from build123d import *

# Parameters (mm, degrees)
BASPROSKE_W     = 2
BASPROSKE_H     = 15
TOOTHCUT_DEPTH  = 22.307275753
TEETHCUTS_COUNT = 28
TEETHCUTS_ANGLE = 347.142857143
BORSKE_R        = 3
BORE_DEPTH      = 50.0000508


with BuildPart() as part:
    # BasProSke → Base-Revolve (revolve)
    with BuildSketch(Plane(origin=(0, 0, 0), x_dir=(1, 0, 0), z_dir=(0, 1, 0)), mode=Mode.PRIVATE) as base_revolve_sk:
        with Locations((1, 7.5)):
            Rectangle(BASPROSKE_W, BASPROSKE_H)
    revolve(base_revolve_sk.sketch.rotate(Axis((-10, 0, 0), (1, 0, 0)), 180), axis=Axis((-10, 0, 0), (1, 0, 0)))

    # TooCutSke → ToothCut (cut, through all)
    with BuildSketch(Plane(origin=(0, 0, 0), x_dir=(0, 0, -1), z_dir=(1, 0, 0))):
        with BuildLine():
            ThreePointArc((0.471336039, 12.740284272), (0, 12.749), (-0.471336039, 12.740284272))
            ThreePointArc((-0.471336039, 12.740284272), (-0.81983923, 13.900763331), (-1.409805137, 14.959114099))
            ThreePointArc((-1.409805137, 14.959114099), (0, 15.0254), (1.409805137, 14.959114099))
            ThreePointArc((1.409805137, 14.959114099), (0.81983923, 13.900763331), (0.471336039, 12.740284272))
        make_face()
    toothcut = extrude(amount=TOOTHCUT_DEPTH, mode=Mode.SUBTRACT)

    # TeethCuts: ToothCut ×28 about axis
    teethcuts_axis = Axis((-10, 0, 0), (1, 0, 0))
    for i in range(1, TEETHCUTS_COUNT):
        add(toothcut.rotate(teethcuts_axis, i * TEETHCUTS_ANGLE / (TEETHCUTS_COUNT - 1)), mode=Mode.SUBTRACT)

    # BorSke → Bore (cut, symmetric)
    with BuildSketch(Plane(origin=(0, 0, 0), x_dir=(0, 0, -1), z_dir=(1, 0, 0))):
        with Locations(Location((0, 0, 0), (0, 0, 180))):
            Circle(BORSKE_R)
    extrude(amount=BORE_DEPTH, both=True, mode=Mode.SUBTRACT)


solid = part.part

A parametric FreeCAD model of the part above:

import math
import FreeCAD as App
import Part
import Sketcher
Q = App.Units.Quantity


def add_polygon(sketch, points):
    """Adds a closed chain of lines whose ends are joined by coincident constraints."""
    first, n = sketch.GeometryCount, len(points)
    for a, b in zip(points, points[1:] + points[:1]):
        sketch.addGeometry(Part.LineSegment(App.Vector(*a, 0), App.Vector(*b, 0)), False)
    for i in range(n):
        sketch.addConstraint(Sketcher.Constraint("Coincident", first + i, 2, first + (i + 1) % n, 1))

doc = App.newDocument("Part")
body = doc.addObject("PartDesign::Body", "Body")

# Sketch on XZ plane
sketch1 = doc.addObject("Sketcher::SketchObject", "Sketch")
body.addObject(sketch1)
sketch1.AttachmentSupport = (doc.XZ_Plane, [""])
sketch1.MapMode = "FlatFace"
add_polygon(sketch1, [(0, -15), (0, 0), (2, 0), (2, -15)])  # lines 0-3
sketch1.addConstraint(Sketcher.Constraint("Vertical", 0))
sketch1.addConstraint(Sketcher.Constraint("Horizontal", 1))
sketch1.addConstraint(Sketcher.Constraint("Vertical", 2))
sketch1.addConstraint(Sketcher.Constraint("Horizontal", 3))
sketch1.addConstraint(Sketcher.Constraint("Coincident", 0, 2, -1, 1))
sketch1.addConstraint(Sketcher.Constraint("DistanceX", 1, 1, 1, 2, Q("2 mm")))
sketch1.addConstraint(Sketcher.Constraint("DistanceY", 0, 1, 0, 2, Q("15 mm")))
revolution = doc.addObject("PartDesign::Revolution", "Revolution")
body.addObject(revolution)
revolution.Profile = sketch1
revolution.ReferenceAxis = (sketch1, ["H_Axis"])
revolution.Angle = 360

# Sketch on YZ plane
sketch2 = doc.addObject("Sketcher::SketchObject", "Sketch001")
body.addObject(sketch2)
sketch2.AttachmentSupport = (doc.YZ_Plane, [""])
sketch2.MapMode = "FlatFace"
sketch2.addGeometry(Part.ArcOfCircle(Part.Circle(App.Vector(0, 0, 0), App.Vector(0, 0, 1), 12.749), math.radians(-2.118733), math.radians(2.118733)), False)
sketch2.addGeometry(Part.ArcOfCircle(Part.Circle(App.Vector(11.719305, -5.977478, 0), App.Vector(0, 0, 1), 5.6), math.radians(54.652268), math.radians(79.49521)), False)
sketch2.addGeometry(Part.ArcOfCircle(Part.Circle(App.Vector(0, 0, 0), App.Vector(0, 0, 1), 15.0254), math.radians(-5.383875), math.radians(5.383875)), False)
sketch2.addGeometry(Part.ArcOfCircle(Part.Circle(App.Vector(11.719305, 5.977478, 0), App.Vector(0, 0, 1), 5.6), math.radians(-79.49521), math.radians(-54.652268)), False)
sketch2.addConstraint(Sketcher.Constraint("Coincident", 0, 1, 1, 2))
sketch2.addConstraint(Sketcher.Constraint("Coincident", 1, 1, 2, 1))
sketch2.addConstraint(Sketcher.Constraint("Coincident", 2, 2, 3, 2))
sketch2.addConstraint(Sketcher.Constraint("Coincident", 3, 1, 0, 2))
sketch2.addConstraint(Sketcher.Constraint("Coincident", 0, 3, -1, 1))
sketch2.addConstraint(Sketcher.Constraint("Coincident", 2, 3, -1, 1))
sketch2.addConstraint(Sketcher.Constraint("Equal", 1, 3))
sketch2.addConstraint(Sketcher.Constraint("Symmetric", 1, 3, 3, 3, -1))
sketch2.addConstraint(Sketcher.Constraint("Radius", 1, Q("5.6 mm")))
sketch2.addConstraint(Sketcher.Constraint("Radius", 0, Q("12.749 mm")))
sketch2.addConstraint(Sketcher.Constraint("Radius", 2, Q("15.0254 mm")))
sketch2.addConstraint(Sketcher.Constraint("DistanceY", 1, 3, -1, 1, Q("5.977478 mm")))
sketch2.addConstraint(Sketcher.Constraint("DistanceX", 1, 3, 0, 1, Q("1.020979 mm")))
pocket1 = doc.addObject("PartDesign::Pocket", "Pocket")
body.addObject(pocket1)
pocket1.Profile = sketch2
pocket1.Type = "ThroughAll"
pocket1.Reversed = True
doc.recompute()

polarpattern = doc.addObject("PartDesign::PolarPattern", "PolarPattern")
body.addObject(polarpattern)
polarpattern.Originals = [pocket1]
polarpattern.Axis = (doc.X_Axis, [""])
polarpattern.Angle = 360
polarpattern.Occurrences = 28
body.Tip = polarpattern

# Sketch on YZ plane
sketch3 = doc.addObject("Sketcher::SketchObject", "Sketch002")
body.addObject(sketch3)
sketch3.AttachmentSupport = (doc.YZ_Plane, [""])
sketch3.MapMode = "FlatFace"
sketch3.addGeometry(Part.Circle(App.Vector(0, 0, 0), App.Vector(0, 0, 1), 3), False)
sketch3.addConstraint(Sketcher.Constraint("Coincident", 0, 3, -1, 1))
sketch3.addConstraint(Sketcher.Constraint("Diameter", 0, Q("6 mm")))
pocket2 = doc.addObject("PartDesign::Pocket", "Pocket001")
body.addObject(pocket2)
pocket2.Profile = sketch3
pocket2.Length = 100.000102
pocket2.Midplane = True

doc.recompute()
